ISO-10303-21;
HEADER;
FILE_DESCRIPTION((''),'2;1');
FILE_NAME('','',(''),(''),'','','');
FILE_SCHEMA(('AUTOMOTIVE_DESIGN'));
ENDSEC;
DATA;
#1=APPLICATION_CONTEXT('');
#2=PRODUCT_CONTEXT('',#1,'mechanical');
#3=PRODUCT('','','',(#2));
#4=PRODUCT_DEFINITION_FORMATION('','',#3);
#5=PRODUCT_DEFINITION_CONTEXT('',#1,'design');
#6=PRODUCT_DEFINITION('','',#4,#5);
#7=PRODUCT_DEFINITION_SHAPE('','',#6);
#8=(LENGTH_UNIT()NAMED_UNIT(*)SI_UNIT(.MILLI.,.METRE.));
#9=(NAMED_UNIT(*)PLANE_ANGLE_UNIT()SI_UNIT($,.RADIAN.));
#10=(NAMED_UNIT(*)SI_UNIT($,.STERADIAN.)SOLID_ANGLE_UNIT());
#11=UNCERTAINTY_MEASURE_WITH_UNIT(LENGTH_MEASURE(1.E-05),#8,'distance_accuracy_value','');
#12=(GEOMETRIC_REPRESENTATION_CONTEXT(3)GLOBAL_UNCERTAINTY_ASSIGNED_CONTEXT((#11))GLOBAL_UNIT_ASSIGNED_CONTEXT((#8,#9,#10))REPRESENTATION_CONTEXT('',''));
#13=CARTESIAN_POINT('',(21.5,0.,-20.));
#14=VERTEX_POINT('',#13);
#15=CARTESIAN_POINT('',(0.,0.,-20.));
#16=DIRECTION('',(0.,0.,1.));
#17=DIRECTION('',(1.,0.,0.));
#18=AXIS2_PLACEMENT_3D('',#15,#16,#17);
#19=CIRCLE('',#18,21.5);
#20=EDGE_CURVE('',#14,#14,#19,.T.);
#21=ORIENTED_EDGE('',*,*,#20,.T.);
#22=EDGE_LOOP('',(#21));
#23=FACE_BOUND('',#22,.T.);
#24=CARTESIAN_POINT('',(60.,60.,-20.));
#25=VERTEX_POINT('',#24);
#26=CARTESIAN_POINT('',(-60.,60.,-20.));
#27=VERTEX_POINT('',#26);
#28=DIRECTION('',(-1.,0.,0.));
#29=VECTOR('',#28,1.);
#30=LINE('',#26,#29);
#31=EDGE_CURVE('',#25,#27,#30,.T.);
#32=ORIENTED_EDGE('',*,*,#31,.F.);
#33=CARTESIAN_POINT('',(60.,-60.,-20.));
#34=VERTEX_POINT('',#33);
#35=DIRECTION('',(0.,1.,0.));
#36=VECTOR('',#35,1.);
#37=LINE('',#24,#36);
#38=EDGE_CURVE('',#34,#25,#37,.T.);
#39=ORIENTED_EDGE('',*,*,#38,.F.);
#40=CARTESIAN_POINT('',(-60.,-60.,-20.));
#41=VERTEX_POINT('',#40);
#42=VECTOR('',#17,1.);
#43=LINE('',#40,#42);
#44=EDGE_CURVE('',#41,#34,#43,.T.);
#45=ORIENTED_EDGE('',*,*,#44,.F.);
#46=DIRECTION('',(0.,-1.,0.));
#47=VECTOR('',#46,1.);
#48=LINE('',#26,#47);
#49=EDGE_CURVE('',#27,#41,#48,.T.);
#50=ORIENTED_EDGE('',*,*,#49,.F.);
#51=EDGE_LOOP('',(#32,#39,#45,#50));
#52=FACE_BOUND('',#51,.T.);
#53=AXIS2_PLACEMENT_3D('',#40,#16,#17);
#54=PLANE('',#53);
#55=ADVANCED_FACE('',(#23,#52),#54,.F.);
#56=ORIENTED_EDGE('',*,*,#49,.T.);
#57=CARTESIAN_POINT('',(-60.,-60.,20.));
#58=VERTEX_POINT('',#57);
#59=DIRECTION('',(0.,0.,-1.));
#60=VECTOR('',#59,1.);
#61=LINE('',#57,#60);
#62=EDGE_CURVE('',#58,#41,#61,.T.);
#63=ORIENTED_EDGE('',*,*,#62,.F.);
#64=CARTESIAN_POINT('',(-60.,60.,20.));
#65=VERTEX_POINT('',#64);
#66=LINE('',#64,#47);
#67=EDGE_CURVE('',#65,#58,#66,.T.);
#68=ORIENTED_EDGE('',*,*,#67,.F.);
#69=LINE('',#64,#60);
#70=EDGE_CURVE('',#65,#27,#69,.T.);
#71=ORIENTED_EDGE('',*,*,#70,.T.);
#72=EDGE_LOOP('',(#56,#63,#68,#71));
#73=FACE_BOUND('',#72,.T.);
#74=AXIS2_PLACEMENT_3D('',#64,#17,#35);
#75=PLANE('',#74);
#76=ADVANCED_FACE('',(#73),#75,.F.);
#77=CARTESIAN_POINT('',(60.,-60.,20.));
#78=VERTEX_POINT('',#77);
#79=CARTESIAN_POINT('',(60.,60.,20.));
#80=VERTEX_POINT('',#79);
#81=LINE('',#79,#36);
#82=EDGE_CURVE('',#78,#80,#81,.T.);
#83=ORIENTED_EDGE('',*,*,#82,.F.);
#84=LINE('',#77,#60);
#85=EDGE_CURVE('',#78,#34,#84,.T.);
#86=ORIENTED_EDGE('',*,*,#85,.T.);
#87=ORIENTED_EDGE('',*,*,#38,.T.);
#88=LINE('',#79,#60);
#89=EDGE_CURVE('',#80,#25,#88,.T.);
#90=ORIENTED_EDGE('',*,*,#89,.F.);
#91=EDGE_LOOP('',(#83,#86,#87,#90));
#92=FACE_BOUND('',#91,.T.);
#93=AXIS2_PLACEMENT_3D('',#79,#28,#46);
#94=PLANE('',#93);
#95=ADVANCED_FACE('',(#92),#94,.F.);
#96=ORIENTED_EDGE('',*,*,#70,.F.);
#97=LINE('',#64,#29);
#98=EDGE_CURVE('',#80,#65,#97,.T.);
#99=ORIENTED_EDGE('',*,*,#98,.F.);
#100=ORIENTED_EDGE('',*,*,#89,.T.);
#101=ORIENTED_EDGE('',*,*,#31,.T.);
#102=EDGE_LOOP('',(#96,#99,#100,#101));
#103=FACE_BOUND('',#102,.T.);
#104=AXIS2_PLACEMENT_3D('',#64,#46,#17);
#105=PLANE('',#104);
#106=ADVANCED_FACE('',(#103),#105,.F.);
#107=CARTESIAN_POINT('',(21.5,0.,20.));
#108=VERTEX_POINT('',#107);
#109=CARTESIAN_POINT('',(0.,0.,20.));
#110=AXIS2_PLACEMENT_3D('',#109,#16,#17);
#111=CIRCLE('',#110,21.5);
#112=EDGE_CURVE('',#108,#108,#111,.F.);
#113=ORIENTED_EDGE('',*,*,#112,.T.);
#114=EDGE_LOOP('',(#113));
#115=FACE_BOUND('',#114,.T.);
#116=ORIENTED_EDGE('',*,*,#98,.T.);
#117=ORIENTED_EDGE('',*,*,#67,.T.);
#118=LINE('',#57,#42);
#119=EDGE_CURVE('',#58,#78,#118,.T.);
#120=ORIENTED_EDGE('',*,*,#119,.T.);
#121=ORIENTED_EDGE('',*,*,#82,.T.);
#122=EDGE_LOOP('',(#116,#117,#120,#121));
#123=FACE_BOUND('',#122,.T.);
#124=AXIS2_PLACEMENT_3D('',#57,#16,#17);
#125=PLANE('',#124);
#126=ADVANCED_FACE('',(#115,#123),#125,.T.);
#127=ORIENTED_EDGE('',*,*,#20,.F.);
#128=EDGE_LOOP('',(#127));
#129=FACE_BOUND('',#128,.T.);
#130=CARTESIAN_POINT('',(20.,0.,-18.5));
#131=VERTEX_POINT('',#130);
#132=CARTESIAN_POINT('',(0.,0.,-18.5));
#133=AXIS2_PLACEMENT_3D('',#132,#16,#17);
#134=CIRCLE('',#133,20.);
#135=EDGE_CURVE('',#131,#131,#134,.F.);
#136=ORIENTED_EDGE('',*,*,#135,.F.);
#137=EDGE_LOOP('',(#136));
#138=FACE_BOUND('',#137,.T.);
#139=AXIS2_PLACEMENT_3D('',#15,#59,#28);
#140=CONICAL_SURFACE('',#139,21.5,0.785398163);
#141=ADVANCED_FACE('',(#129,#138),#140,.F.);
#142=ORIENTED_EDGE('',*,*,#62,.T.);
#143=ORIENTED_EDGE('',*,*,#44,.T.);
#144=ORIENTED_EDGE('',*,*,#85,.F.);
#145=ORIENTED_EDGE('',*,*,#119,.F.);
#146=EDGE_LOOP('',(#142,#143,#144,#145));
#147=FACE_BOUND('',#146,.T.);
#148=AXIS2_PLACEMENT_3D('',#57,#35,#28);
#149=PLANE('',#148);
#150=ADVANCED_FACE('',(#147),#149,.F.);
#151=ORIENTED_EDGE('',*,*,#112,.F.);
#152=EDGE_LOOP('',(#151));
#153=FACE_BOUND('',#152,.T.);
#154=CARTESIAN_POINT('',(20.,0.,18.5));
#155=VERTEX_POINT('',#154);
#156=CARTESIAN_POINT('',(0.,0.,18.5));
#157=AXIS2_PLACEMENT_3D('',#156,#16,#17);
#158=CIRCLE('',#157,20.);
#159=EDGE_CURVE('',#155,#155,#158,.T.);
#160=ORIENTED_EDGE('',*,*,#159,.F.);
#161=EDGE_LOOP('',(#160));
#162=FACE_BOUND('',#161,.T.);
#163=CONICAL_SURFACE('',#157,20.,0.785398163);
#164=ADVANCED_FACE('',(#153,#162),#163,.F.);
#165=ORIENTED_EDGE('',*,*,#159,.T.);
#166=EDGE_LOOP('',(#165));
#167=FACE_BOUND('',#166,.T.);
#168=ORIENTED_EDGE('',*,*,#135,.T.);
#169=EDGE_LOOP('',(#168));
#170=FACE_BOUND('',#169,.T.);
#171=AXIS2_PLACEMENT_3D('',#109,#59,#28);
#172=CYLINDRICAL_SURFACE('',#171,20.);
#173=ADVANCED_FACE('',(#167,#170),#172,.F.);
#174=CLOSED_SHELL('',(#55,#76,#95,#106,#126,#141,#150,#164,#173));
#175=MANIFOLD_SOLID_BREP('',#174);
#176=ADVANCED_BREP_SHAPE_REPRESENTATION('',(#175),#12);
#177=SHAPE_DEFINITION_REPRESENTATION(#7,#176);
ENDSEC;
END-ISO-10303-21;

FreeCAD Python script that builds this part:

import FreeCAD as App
import Part
import Sketcher
from FreeCAD import Vector
Q = App.Units.Quantity


def edges_at(feature, points):
    """Names of the edges that pass closest to the given points."""
    edges = feature.Shape.Edges
    near = lambda p: min(range(len(edges)), key=lambda i: edges[i].distToShape(Part.Vertex(*p))[0])
    return sorted({f"Edge{near(p) + 1}" for p in points})

doc = App.newDocument("Part")
body = doc.addObject("PartDesign::Body", "Body")

# Sketch on XY plane
sketch1 = doc.addObject("Sketcher::SketchObject", "Sketch")
body.addObject(sketch1)
sketch1.AttachmentSupport = (doc.XY_Plane, [""])
sketch1.MapMode = "FlatFace"
sketch1.addGeometry([
    Part.LineSegment(Vector(-60, 60, 0), Vector(-60, -60, 0)),  # 0
    Part.LineSegment(Vector(-60, -60, 0), Vector(60, -60, 0)),  # 1
    Part.LineSegment(Vector(60, -60, 0), Vector(60, 60, 0)),  # 2
    Part.LineSegment(Vector(60, 60, 0), Vector(-60, 60, 0)),  # 3
    Part.Circle(Vector(0, 0, 0), Vector(0, 0, 1), 20),  # 4
], False)
sketch1.addConstraint([
    Sketcher.Constraint("Coincident", 0, 2, 1, 1),
    Sketcher.Constraint("Coincident", 1, 2, 2, 1),
    Sketcher.Constraint("Coincident", 2, 2, 3, 1),
    Sketcher.Constraint("Coincident", 3, 2, 0, 1),
    Sketcher.Constraint("Vertical", 0),
    Sketcher.Constraint("Horizontal", 1),
    Sketcher.Constraint("Vertical", 2),
    Sketcher.Constraint("Horizontal", 3),
    Sketcher.Constraint("Coincident", 4, 3, -1, 1),
    Sketcher.Constraint("Symmetric", 0, 2, 2, 2, -1, 1),
    Sketcher.Constraint("Equal", 3, 0),
    Sketcher.Constraint("Diameter", 4, Q("40 mm")),
    Sketcher.Constraint("DistanceX", 1, 1, 1, 2, Q("120 mm")),
])
pad1 = doc.addObject("PartDesign::Pad", "Pad")
body.addObject(pad1)
pad1.Profile = sketch1
pad1.Length = 40
pad1.Midplane = True
doc.recompute()

chamfer = doc.addObject("PartDesign::Chamfer", "Chamfer")
body.addObject(chamfer)
chamfer.Base = (pad1, edges_at(pad1, [(-20, 0, -20), (-20, 0, 20)]))
chamfer.Size = 1.5

doc.recompute()
